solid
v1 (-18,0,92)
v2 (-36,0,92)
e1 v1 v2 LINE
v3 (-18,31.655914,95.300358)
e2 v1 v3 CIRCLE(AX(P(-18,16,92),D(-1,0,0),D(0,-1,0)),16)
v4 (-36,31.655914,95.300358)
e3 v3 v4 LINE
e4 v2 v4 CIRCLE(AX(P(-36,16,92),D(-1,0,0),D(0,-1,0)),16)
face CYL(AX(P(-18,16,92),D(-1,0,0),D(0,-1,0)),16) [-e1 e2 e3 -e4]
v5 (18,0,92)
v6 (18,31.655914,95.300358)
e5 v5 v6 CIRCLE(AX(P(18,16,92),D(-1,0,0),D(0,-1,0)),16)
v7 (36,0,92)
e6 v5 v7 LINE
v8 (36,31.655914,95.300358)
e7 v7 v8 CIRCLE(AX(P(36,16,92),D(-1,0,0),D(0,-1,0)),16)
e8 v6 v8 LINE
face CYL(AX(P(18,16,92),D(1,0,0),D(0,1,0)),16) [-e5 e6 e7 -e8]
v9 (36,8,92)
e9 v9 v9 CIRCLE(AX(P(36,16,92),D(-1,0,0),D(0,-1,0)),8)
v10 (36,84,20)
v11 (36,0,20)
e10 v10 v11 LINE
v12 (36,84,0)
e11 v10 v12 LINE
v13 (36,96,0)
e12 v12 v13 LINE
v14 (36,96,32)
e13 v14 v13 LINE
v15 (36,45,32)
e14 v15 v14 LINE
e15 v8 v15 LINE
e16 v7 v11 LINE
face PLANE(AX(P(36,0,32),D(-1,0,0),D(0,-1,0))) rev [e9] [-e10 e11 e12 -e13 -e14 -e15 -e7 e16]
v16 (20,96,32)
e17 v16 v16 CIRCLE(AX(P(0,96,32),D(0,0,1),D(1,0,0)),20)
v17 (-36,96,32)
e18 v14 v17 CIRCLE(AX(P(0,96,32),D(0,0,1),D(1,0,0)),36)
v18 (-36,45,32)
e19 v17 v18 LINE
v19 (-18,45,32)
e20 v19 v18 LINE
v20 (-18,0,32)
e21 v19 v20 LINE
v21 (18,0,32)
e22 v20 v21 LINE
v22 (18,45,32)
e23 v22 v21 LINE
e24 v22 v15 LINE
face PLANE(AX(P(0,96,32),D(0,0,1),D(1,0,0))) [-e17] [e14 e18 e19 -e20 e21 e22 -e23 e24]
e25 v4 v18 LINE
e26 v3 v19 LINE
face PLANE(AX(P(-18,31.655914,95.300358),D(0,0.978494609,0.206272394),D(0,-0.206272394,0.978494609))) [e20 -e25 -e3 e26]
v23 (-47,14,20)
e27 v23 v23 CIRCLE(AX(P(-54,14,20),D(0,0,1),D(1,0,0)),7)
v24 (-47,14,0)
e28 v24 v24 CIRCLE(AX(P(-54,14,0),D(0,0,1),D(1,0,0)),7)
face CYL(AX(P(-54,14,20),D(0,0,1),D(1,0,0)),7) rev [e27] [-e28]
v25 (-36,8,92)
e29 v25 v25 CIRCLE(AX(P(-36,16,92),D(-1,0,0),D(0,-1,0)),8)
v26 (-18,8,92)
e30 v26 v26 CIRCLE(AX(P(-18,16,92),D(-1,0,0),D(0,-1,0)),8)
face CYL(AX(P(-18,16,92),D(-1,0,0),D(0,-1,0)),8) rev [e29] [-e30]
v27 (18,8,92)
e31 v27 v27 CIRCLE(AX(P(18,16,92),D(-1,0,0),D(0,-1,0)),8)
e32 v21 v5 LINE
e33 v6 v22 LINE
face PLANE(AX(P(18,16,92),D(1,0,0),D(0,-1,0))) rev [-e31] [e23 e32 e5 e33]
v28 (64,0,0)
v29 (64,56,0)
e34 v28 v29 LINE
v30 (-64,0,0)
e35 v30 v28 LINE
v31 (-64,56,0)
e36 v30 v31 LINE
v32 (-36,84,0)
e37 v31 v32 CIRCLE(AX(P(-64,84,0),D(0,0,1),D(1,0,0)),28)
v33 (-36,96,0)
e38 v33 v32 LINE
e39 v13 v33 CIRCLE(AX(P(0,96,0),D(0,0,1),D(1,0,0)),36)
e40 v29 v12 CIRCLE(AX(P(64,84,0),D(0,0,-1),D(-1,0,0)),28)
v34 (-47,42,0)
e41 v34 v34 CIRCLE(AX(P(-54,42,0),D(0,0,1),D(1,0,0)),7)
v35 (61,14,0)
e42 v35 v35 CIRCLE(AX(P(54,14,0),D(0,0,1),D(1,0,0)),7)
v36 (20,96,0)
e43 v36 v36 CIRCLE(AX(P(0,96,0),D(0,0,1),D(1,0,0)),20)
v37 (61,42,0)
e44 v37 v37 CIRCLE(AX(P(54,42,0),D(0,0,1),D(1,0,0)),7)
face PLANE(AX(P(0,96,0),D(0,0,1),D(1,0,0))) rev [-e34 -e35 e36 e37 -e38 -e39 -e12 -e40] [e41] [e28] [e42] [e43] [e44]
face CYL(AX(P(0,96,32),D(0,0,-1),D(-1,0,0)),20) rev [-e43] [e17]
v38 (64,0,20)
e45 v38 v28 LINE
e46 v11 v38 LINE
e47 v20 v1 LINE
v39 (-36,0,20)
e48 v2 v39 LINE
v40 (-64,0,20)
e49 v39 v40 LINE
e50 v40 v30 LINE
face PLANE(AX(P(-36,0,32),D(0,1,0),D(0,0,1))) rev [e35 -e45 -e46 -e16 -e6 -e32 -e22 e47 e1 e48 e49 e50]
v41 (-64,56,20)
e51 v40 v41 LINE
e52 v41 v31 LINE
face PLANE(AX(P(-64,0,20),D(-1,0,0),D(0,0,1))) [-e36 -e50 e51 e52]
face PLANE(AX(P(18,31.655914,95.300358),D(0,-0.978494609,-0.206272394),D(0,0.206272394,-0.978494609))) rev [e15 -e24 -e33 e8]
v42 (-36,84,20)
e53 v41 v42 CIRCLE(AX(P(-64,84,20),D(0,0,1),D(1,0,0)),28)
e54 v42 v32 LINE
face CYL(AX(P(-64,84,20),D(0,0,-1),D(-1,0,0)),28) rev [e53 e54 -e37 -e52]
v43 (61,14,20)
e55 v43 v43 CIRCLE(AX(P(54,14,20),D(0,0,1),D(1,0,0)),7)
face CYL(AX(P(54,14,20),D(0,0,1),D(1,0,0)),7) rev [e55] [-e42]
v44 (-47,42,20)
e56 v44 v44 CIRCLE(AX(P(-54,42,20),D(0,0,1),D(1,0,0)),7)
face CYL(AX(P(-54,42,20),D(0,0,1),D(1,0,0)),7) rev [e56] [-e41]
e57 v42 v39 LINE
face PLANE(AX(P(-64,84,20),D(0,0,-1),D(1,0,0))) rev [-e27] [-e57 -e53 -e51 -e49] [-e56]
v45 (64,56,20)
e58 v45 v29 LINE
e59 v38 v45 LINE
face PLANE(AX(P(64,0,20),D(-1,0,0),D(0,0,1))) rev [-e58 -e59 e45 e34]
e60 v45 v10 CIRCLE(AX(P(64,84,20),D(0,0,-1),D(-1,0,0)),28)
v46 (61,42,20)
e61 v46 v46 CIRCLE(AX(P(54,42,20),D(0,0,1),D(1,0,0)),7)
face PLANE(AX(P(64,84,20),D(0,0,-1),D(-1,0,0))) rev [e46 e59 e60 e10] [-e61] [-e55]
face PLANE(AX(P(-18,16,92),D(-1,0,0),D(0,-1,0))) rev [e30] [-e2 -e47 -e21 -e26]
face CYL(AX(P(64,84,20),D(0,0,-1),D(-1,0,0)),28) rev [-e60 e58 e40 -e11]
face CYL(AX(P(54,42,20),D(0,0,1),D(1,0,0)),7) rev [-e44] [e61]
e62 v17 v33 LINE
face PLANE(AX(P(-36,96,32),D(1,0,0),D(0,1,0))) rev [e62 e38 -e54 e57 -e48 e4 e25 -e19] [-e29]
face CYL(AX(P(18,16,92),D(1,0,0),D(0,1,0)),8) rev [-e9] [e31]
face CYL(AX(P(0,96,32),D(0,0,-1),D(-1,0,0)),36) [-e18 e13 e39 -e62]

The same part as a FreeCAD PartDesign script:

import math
import FreeCAD as App
import Part
import Sketcher

doc = App.newDocument("Part")
body = doc.addObject("PartDesign::Body", "Body")

sketch1 = body.newObject("Sketcher::SketchObject", "Sketch")
sketch1.AttachmentSupport = (doc.getObject("XY_Plane"), [""])
sketch1.MapMode = "FlatFace"
sketch1.addGeometry(Part.LineSegment(App.Vector(-36, 96, 0), App.Vector(-36, 0, 0)), False)
sketch1.addGeometry(Part.LineSegment(App.Vector(-36, 0, 0), App.Vector(36, 0, 0)), False)
sketch1.addGeometry(Part.LineSegment(App.Vector(36, 0, 0), App.Vector(36, 96, 0)), False)
sketch1.addGeometry(Part.ArcOfCircle(Part.Circle(App.Vector(0, 96, 0), App.Vector(0, 0, 1), 36), math.radians(0), math.radians(180)), False)
sketch1.addGeometry(Part.Circle(App.Vector(0, 96, 0), App.Vector(0, 0, 1), 20), False)
sketch1.addConstraint(Sketcher.Constraint("Coincident", 0, 2, 1, 1))
sketch1.addConstraint(Sketcher.Constraint("Coincident", 1, 2, 2, 1))
sketch1.addConstraint(Sketcher.Constraint("Tangent", 2, 2, 3, 1))
sketch1.addConstraint(Sketcher.Constraint("Tangent", 3, 2, 0, 1))
sketch1.addConstraint(Sketcher.Constraint("Vertical", 0))
sketch1.addConstraint(Sketcher.Constraint("Horizontal", 1))
sketch1.addConstraint(Sketcher.Constraint("Vertical", 2))
sketch1.addConstraint(Sketcher.Constraint("Coincident", 4, 3, 3, 3))
sketch1.addConstraint(Sketcher.Constraint("Symmetric", 0, 2, 1, 2, -1, 1))
sketch1.addConstraint(Sketcher.Constraint("Diameter", 4, 40.0))
sketch1.addConstraint(Sketcher.Constraint("Radius", 3, 36.0))
sketch1.addConstraint(Sketcher.Constraint("DistanceY", 0, 2, 0, 1, 96.0))
pad1 = body.newObject("PartDesign::Pad", "Pad")
pad1.Profile = sketch1
pad1.Length = 32

sketch2 = body.newObject("Sketcher::SketchObject", "Sketch001")
sketch2.AttachmentSupport = (doc.getObject("XY_Plane"), [""])
sketch2.MapMode = "FlatFace"
sketch2.addGeometry(Part.LineSegment(App.Vector(36, 0, 0), App.Vector(64, 0, 0)), False)
sketch2.addGeometry(Part.LineSegment(App.Vector(64, 0, 0), App.Vector(64, 56, 0)), False)
sketch2.addGeometry(Part.ArcOfCircle(Part.Circle(App.Vector(64, 84, 0), App.Vector(0, 0, 1), 28), math.radians(-180), math.radians(-90)), False)
sketch2.addGeometry(Part.LineSegment(App.Vector(36, 84, 0), App.Vector(36, 0, 0)), False)
sketch2.addConstraint(Sketcher.Constraint("Coincident", 0, 2, 1, 1))
sketch2.addConstraint(Sketcher.Constraint("Coincident", 1, 2, 2, 2))
sketch2.addConstraint(Sketcher.Constraint("Tangent", 2, 1, 3, 1))
sketch2.addConstraint(Sketcher.Constraint("Coincident", 3, 2, 0, 1))
sketch2.addConstraint(Sketcher.Constraint("Horizontal", 0))
sketch2.addConstraint(Sketcher.Constraint("Vertical", 1))
sketch2.addConstraint(Sketcher.Constraint("Vertical", 3))
sketch2.addConstraint(Sketcher.Constraint("PointOnObject", 0, 2, -1))
sketch2.addConstraint(Sketcher.Constraint("Vertical", 2, 3, 0, 2))
sketch2.addConstraint(Sketcher.Constraint("Radius", 2, 28.0))
sketch2.addConstraint(Sketcher.Constraint("DistanceY", 1, 1, 1, 2, 56.0))
sketch2.addConstraint(Sketcher.Constraint("DistanceX", -1, 1, 2, 3, 64.0))
pad2 = body.newObject("PartDesign::Pad", "Pad001")
pad2.Profile = sketch2
pad2.Length = 20
doc.recompute()

mirrored = body.newObject("PartDesign::Mirrored", "Mirrored")
mirrored.Originals = [pad2]
mirrored.MirrorPlane = (doc.getObject("YZ_Plane"), [""])
body.Tip = mirrored

sketch3 = body.newObject("Sketcher::SketchObject", "Sketch002")
sketch3.AttachmentSupport = (doc.getObject("YZ_Plane"), [""])
sketch3.MapMode = "FlatFace"
sketch3.AttachmentOffset = App.Placement(App.Vector(0, 0, -36), App.Rotation())
sketch3.addGeometry(Part.LineSegment(App.Vector(0, 32, 0), App.Vector(0, 92, 0)), False)
sketch3.addGeometry(Part.ArcOfCircle(Part.Circle(App.Vector(16, 92, 0), App.Vector(0, 0, 1), 16), math.radians(11.903994), math.radians(180)), False)
sketch3.addGeometry(Part.LineSegment(App.Vector(31.655914, 95.300358, 0), App.Vector(45, 32, 0)), False)
sketch3.addGeometry(Part.LineSegment(App.Vector(45, 32, 0), App.Vector(0, 32, 0)), False)
sketch3.addGeometry(Part.Circle(App.Vector(16, 92, 0), App.Vector(0, 0, 1), 8), False)
sketch3.addConstraint(Sketcher.Constraint("Tangent", 0, 2, 1, 2))
sketch3.addConstraint(Sketcher.Constraint("Tangent", 1, 1, 2, 1))
sketch3.addConstraint(Sketcher.Constraint("Coincident", 2, 2, 3, 1))
sketch3.addConstraint(Sketcher.Constraint("Coincident", 3, 2, 0, 1))
sketch3.addConstraint(Sketcher.Constraint("Vertical", 0))
sketch3.addConstraint(Sketcher.Constraint("Horizontal", 3))
sketch3.addConstraint(Sketcher.Constraint("Coincident", 4, 3, 1, 3))
sketch3.addConstraint(Sketcher.Constraint("PointOnObject", 0, 2, -2))
sketch3.addConstraint(Sketcher.Constraint("Diameter", 4, 16.0))
sketch3.addConstraint(Sketcher.Constraint("Radius", 1, 16.0))
sketch3.addConstraint(Sketcher.Constraint("DistanceX", 3, 2, 3, 1, 45.0))
sketch3.addConstraint(Sketcher.Constraint("DistanceY", 0, 1, 0, 2, 60.0))
sketch3.addConstraint(Sketcher.Constraint("DistanceY", -1, 1, 1, 3, 92.0))
pad3 = body.newObject("PartDesign::Pad", "Pad002")
pad3.Profile = sketch3
pad3.Length = 18
doc.recompute()

mirrored2 = body.newObject("PartDesign::Mirrored", "Mirrored001")
mirrored2.Originals = [pad3]
mirrored2.MirrorPlane = (doc.getObject("YZ_Plane"), [""])
body.Tip = mirrored2

sketch4 = body.newObject("Sketcher::SketchObject", "Sketch003")
sketch4.AttachmentSupport = (doc.getObject("XY_Plane"), [""])
sketch4.MapMode = "FlatFace"
sketch4.AttachmentOffset = App.Placement(App.Vector(0, 0, 20), App.Rotation())
sketch4.addGeometry(Part.Circle(App.Vector(54, 14, 0), App.Vector(0, 0, 1), 7), False)
sketch4.addGeometry(Part.Circle(App.Vector(54, 42, 0), App.Vector(0, 0, 1), 7), False)
sketch4.addConstraint(Sketcher.Constraint("Equal", 0, 1))
sketch4.addConstraint(Sketcher.Constraint("Vertical", 0, 3, 1, 3))
sketch4.addConstraint(Sketcher.Constraint("Diameter", 0, 14.0))
sketch4.addConstraint(Sketcher.Constraint("DistanceX", -1, 1, 0, 3, 54.0))
sketch4.addConstraint(Sketcher.Constraint("DistanceY", -1, 1, 0, 3, 14.0))
sketch4.addConstraint(Sketcher.Constraint("DistanceY", -1, 1, 1, 3, 42.0))
doc.recompute()
hole = body.newObject("PartDesign::Hole", "Hole")
hole.Profile = sketch4
hole.ThreadType = "None"
hole.Diameter = 14
hole.DepthType = "Dimension"
hole.Depth = 100
hole.DrillPoint = "Flat"
doc.recompute()

mirrored3 = body.newObject("PartDesign::Mirrored", "Mirrored002")
mirrored3.Originals = [hole]
mirrored3.MirrorPlane = (doc.getObject("YZ_Plane"), [""])
body.Tip = mirrored3

doc.recompute()
